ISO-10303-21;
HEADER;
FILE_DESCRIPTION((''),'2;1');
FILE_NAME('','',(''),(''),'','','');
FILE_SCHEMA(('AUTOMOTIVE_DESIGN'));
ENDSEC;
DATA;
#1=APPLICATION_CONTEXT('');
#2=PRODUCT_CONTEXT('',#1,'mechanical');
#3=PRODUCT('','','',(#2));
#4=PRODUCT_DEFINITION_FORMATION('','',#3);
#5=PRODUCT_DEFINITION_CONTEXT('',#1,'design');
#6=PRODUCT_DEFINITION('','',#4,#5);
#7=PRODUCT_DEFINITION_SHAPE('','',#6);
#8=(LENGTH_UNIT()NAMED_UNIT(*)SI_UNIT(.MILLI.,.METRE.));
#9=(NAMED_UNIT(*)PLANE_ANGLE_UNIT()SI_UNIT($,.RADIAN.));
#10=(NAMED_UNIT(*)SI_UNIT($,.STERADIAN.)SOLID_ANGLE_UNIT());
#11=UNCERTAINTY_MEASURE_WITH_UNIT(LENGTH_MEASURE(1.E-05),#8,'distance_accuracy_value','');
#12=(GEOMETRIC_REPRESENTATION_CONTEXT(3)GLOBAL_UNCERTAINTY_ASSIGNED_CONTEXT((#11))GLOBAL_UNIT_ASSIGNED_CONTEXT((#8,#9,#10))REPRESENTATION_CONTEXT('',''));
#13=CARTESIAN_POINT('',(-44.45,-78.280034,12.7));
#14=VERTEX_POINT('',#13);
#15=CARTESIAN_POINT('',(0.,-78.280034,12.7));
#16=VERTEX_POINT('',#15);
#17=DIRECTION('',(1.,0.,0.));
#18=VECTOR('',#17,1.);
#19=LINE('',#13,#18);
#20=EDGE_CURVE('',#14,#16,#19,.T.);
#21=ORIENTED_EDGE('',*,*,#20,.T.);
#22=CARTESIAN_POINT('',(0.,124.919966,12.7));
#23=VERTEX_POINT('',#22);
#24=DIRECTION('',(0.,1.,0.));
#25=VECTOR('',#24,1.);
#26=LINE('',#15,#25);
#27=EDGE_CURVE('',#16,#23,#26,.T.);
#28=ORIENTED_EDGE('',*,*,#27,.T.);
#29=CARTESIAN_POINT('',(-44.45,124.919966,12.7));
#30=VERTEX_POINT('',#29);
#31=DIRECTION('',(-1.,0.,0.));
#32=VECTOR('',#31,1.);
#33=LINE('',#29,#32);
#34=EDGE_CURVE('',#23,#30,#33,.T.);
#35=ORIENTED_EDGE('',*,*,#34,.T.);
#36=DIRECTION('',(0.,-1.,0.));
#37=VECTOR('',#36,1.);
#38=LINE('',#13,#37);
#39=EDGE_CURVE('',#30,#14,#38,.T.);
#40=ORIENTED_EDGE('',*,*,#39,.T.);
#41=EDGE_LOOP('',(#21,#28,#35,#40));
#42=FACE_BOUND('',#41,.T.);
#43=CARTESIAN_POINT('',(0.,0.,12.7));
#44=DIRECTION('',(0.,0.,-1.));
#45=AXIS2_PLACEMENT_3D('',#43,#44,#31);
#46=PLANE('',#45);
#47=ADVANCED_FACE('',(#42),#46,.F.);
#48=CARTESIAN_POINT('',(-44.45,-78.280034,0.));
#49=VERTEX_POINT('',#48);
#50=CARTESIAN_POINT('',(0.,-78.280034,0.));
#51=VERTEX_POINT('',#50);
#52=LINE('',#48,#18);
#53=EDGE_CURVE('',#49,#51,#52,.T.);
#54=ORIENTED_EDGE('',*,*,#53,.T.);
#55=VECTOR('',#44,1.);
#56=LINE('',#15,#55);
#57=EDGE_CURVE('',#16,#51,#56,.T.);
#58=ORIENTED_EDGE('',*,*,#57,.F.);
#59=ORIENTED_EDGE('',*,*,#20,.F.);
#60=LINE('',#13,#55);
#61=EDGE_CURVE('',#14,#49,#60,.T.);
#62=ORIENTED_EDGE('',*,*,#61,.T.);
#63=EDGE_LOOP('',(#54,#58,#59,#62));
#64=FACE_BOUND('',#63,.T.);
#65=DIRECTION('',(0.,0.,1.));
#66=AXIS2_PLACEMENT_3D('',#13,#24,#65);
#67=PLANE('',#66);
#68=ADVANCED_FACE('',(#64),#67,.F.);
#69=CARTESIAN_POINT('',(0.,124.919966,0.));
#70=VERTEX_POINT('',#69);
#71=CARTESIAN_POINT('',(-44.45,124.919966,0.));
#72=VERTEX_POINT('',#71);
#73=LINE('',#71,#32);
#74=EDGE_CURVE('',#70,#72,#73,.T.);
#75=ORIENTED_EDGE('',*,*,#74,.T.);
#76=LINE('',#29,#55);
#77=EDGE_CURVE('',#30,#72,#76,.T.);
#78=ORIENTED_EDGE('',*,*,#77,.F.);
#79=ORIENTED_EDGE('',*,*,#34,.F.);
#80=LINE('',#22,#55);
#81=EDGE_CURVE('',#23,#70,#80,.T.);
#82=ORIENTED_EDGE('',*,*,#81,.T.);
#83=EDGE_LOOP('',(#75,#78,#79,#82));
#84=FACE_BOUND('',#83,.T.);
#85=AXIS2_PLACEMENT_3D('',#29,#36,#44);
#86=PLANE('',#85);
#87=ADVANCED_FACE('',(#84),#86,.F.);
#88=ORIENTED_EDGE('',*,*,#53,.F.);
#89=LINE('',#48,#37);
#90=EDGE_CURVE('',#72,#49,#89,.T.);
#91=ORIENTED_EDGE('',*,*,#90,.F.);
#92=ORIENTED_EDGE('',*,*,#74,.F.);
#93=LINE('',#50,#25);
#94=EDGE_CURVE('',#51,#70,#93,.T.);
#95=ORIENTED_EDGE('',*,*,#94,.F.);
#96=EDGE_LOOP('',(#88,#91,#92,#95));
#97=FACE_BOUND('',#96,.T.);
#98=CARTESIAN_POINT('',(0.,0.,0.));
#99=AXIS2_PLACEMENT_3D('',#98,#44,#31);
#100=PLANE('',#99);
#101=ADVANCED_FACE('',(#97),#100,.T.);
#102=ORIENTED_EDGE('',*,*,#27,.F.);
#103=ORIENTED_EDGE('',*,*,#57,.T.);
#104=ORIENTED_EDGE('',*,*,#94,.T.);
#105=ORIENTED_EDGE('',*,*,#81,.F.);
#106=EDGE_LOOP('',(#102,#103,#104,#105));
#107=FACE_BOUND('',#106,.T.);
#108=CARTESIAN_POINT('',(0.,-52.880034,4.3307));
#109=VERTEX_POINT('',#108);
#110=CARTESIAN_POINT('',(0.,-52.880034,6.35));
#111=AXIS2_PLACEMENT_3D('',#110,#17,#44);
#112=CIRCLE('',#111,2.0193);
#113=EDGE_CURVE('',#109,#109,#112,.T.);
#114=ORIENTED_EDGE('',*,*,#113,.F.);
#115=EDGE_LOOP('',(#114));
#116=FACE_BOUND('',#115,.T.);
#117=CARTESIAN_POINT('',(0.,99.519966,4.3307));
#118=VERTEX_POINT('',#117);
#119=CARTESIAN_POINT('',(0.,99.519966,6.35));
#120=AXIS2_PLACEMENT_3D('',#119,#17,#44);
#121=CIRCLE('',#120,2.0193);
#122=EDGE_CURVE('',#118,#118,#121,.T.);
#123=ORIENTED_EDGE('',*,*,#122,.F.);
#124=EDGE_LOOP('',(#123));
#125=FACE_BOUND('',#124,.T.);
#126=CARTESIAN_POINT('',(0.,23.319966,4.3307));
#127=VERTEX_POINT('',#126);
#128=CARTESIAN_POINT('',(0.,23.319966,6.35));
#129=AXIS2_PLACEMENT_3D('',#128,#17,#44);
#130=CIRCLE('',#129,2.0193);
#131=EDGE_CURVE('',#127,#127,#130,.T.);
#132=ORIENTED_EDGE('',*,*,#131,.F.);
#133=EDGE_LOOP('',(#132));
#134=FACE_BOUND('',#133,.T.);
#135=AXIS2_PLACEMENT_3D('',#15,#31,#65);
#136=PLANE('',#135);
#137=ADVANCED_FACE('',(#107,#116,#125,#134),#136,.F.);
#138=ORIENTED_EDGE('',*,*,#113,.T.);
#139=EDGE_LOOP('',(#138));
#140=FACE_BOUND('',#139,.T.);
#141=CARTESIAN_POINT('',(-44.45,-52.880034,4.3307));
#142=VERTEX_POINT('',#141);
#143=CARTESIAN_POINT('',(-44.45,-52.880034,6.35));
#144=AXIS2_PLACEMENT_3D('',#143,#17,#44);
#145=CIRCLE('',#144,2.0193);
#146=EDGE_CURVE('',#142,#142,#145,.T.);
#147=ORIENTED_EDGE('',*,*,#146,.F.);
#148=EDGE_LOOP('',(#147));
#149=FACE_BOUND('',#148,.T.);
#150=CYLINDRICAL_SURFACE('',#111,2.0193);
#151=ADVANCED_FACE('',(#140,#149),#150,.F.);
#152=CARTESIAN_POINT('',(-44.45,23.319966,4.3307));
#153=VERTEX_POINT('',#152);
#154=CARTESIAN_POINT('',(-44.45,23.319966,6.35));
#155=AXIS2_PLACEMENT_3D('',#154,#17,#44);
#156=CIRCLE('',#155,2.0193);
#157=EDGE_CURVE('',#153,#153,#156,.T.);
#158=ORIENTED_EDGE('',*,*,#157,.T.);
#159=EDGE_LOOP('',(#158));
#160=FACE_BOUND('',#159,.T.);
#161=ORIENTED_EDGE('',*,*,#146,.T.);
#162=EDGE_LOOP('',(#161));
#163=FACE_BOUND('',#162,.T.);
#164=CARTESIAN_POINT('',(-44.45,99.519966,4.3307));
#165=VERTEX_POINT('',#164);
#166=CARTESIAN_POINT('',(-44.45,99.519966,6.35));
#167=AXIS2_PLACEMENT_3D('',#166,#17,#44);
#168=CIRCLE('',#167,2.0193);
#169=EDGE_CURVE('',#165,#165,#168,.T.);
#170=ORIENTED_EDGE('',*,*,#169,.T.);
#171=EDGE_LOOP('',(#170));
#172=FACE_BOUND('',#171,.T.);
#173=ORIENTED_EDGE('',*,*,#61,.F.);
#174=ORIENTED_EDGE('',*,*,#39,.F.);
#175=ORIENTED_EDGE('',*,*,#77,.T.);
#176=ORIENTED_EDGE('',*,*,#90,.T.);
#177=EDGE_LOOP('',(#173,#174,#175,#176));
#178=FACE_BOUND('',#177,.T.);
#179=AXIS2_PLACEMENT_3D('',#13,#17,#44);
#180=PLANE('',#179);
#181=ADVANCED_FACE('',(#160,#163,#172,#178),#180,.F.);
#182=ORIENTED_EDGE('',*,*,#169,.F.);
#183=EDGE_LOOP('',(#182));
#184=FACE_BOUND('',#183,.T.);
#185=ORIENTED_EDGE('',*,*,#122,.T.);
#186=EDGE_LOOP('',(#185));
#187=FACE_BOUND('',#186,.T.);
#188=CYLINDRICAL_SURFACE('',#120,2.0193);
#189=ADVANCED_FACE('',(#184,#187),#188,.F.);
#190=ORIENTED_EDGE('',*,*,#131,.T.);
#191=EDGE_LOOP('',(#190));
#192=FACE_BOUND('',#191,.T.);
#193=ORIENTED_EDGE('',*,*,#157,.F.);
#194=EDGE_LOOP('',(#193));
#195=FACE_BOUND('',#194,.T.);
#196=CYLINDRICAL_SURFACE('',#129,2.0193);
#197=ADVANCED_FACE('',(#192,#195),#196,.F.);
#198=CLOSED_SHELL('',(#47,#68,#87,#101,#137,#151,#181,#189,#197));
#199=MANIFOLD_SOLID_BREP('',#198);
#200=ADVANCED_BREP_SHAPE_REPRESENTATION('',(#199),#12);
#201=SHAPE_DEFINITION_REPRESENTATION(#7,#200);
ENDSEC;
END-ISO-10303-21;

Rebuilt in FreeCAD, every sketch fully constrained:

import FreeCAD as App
import Part
import Sketcher

V = App.Vector
Q = App.Units.Quantity

doc = App.newDocument("Part")
body = doc.addObject("PartDesign::Body", "Body")

# Sketch on XY plane
sketch1 = body.newObject("Sketcher::SketchObject", "Sketch")
sketch1.AttachmentSupport = (doc.getObject("XY_Plane"), [""])
sketch1.MapMode = "FlatFace"
sketch1.addGeometry([
    Part.LineSegment(V(-44, 125, 0), V(-44, -78, 0)),
    Part.LineSegment(V(-44, -78, 0), V(0, -78, 0)),
    Part.LineSegment(V(0, -78, 0), V(0, 125, 0)),
    Part.LineSegment(V(0, 125, 0), V(-44, 125, 0)),
], False)
sketch1.addConstraint([
    Sketcher.Constraint("Coincident", 0, 2, 1, 1),
    Sketcher.Constraint("Coincident", 1, 2, 2, 1),
    Sketcher.Constraint("Coincident", 2, 2, 3, 1),
    Sketcher.Constraint("Coincident", 3, 2, 0, 1),
    Sketcher.Constraint("Vertical", 0),
    Sketcher.Constraint("Horizontal", 1),
    Sketcher.Constraint("Vertical", 2),
    Sketcher.Constraint("Horizontal", 3),
    Sketcher.Constraint("PointOnObject", 1, 2, -2),
    Sketcher.Constraint("DistanceY", 0, 2, 0, 1, Q("8 in")),
    Sketcher.Constraint("DistanceX", 1, 1, 1, 2, Q("1.75 in")),
    Sketcher.Constraint("DistanceY", 0, 2, -1, 1, Q("78.280034 mm")),
])
pad1 = body.newObject("PartDesign::Pad", "Pad")
pad1.Profile = sketch1
pad1.Length = Q("0.5 in")

# Sketch on YZ plane
sketch2 = body.newObject("Sketcher::SketchObject", "Sketch001")
sketch2.AttachmentSupport = (doc.getObject("YZ_Plane"), [""])
sketch2.MapMode = "FlatFace"
sketch2.addGeometry([
    Part.Circle(V(99.5, 6.3, 0), V(0, 0, 1), 2),
    Part.Circle(V(23.3, 6.3, 0), V(0, 0, 1), 2),
    Part.Circle(V(-52.9, 6.3, 0), V(0, 0, 1), 2),
], False)
sketch2.addConstraint([
    Sketcher.Constraint("Equal", 0, 1),
    Sketcher.Constraint("Equal", 1, 2),
    Sketcher.Constraint("Horizontal", 0, 3, 1, 3),
    Sketcher.Constraint("Horizontal", 1, 3, 2, 3),
    Sketcher.Constraint("Diameter", 0, Q("0.159 in")),
    Sketcher.Constraint("DistanceX", 1, 3, 0, 3, Q("3 in")),
    Sketcher.Constraint("DistanceX", 2, 3, 1, 3, Q("3 in")),
    Sketcher.Constraint("DistanceY", -1, 1, 0, 3, Q("0.25 in")),
    Sketcher.Constraint("DistanceX", -1, 1, 0, 3, Q("99.519966 mm")),
])
doc.recompute()
hole = body.newObject("PartDesign::Hole", "Hole")
hole.Profile = sketch2
hole.ThreadType = "None"
hole.Diameter = Q("0.159 in")
hole.DepthType = "ThroughAll"

doc.recompute()
